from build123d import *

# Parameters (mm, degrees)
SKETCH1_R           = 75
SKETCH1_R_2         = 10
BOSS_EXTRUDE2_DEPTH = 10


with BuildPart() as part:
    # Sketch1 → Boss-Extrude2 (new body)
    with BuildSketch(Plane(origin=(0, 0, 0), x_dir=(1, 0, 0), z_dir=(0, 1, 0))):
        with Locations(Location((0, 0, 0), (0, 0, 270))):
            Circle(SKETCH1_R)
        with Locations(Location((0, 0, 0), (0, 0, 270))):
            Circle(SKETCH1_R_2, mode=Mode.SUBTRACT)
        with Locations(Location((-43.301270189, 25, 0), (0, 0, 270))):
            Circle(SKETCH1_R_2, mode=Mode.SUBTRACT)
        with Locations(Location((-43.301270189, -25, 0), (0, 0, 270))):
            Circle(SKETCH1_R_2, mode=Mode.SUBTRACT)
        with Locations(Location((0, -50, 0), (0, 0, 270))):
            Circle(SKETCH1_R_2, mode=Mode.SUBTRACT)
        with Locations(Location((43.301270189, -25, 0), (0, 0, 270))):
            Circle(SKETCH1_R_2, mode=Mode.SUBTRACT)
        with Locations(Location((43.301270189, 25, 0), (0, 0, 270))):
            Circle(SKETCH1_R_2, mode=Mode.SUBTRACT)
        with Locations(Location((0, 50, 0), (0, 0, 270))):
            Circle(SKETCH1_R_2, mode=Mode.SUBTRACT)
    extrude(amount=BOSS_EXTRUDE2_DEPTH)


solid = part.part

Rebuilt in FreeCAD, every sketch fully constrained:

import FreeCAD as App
import Part
import Sketcher
from FreeCAD import Vector
Q = App.Units.Quantity

doc = App.newDocument("Part")
body = doc.addObject("PartDesign::Body", "Body")

sketch1 = body.newObject("Sketcher::SketchObject", "Sketch")
sketch1.AttachmentSupport = (doc.getObject("XZ_Plane"), [""])
sketch1.MapMode = "FlatFace"
sketch1.addGeometry(Part.Circle(Vector(0, 0, 0), Vector(0, 0, 1), 75), False)
sketch1.addGeometry(Part.Circle(Vector(-43, -25, 0), Vector(0, 0, 1), 10), False)
sketch1.addGeometry(Part.Circle(Vector(0, -50, 0), Vector(0, 0, 1), 10), False)
sketch1.addGeometry(Part.Circle(Vector(-43, 25, 0), Vector(0, 0, 1), 10), False)
sketch1.addGeometry(Part.Circle(Vector(43, -25, 0), Vector(0, 0, 1), 10), False)
sketch1.addGeometry(Part.Circle(Vector(0, 0, 0), Vector(0, 0, 1), 10), False)
sketch1.addGeometry(Part.Circle(Vector(0, 50, 0), Vector(0, 0, 1), 10), False)
sketch1.addGeometry(Part.Circle(Vector(43, 25, 0), Vector(0, 0, 1), 10), False)
sketch1.addConstraint(Sketcher.Constraint("Coincident", 0, 3, -1, 1))
sketch1.addConstraint(Sketcher.Constraint("Coincident", 5, 3, -1, 1))
sketch1.addConstraint(Sketcher.Constraint("Equal", 1, 2))
sketch1.addConstraint(Sketcher.Constraint("Equal", 2, 3))
sketch1.addConstraint(Sketcher.Constraint("Equal", 3, 4))
sketch1.addConstraint(Sketcher.Constraint("Equal", 4, 5))
sketch1.addConstraint(Sketcher.Constraint("Equal", 5, 6))
sketch1.addConstraint(Sketcher.Constraint("Equal", 6, 7))
sketch1.addConstraint(Sketcher.Constraint("Symmetric", 3, 3, 4, 3, -1, 1))
sketch1.addConstraint(Sketcher.Constraint("Symmetric", 2, 3, 6, 3, -1, 1))
sketch1.addConstraint(Sketcher.Constraint("Symmetric", 1, 3, 7, 3, -1, 1))
sketch1.addConstraint(Sketcher.Constraint("Symmetric", 1, 3, 4, 3, -2))
sketch1.addConstraint(Sketcher.Constraint("PointOnObject", 2, 3, -2))
sketch1.addConstraint(Sketcher.Constraint("Diameter", 0, Q("150 mm")))
sketch1.addConstraint(Sketcher.Constraint("Diameter", 1, Q("20 mm")))
sketch1.addConstraint(Sketcher.Constraint("DistanceY", 1, 3, -1, 1, Q("25 mm")))
sketch1.addConstraint(Sketcher.Constraint("DistanceY", 2, 3, -1, 1, Q("50 mm")))
sketch1.addConstraint(Sketcher.Constraint("DistanceX", 1, 3, -1, 1, Q("43.30127 mm")))
pad1 = body.newObject("PartDesign::Pad", "Pad")
pad1.Profile = sketch1
pad1.Length = 10
pad1.Reversed = True

doc.recompute()
